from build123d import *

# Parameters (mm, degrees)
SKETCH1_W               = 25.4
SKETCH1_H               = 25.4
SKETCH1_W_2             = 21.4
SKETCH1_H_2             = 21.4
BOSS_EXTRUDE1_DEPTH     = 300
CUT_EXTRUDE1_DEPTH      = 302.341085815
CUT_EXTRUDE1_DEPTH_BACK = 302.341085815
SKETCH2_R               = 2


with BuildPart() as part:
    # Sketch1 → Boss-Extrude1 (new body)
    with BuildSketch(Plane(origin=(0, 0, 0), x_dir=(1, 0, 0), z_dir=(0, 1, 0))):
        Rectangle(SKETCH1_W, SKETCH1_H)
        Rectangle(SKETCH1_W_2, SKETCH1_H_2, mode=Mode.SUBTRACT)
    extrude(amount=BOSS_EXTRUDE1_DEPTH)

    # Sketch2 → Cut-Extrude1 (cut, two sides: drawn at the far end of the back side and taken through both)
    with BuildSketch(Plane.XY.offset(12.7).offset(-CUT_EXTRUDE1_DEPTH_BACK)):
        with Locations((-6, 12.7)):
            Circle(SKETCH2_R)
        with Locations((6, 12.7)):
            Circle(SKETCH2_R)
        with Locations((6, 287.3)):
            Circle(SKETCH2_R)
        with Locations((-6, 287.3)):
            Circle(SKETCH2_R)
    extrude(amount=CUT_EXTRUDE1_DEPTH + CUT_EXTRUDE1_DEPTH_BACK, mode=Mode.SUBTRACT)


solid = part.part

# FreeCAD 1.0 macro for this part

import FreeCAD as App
import Part
import Sketcher

V = App.Vector


def add_polygon(sketch, points):
    """Adds a closed chain of lines whose ends are joined by coincident constraints."""
    first, n = sketch.GeometryCount, len(points)
    for a, b in zip(points, points[1:] + points[:1]):
        sketch.addGeometry(Part.LineSegment(App.Vector(*a, 0), App.Vector(*b, 0)), False)
    for i in range(n):
        sketch.addConstraint(Sketcher.Constraint("Coincident", first + i, 2, first + (i + 1) % n, 1))

doc = App.newDocument("Part")
body = doc.addObject("PartDesign::Body", "Body")

# Sketch on XZ plane
sketch1 = body.newObject("Sketcher::SketchObject", "Sketch")
sketch1.AttachmentSupport = (doc.getObject("XZ_Plane"), [""])
sketch1.MapMode = "FlatFace"
add_polygon(sketch1, [(-12.7, -12.7), (-12.7, 12.7), (12.7, 12.7), (12.7, -12.7)])  # lines 0-3
add_polygon(sketch1, [(10.7, 10.7), (-10.7, 10.7), (-10.7, -10.7), (10.7, -10.7)])  # lines 4-7
sketch1.addConstraint([
    Sketcher.Constraint("Vertical", 0),
    Sketcher.Constraint("Horizontal", 1),
    Sketcher.Constraint("Vertical", 2),
    Sketcher.Constraint("Horizontal", 3),
    Sketcher.Constraint("Horizontal", 4),
    Sketcher.Constraint("Vertical", 5),
    Sketcher.Constraint("Horizontal", 6),
    Sketcher.Constraint("Vertical", 7),
    Sketcher.Constraint("Symmetric", 0, 2, 2, 2, -1, 1),
    Sketcher.Constraint("Symmetric", 4, 2, 6, 2, -1, 1),
    Sketcher.Constraint("Equal", 3, 0),
    Sketcher.Constraint("Equal", 6, 5),
    Sketcher.Constraint("DistanceX", 1, 1, 1, 2, 25.4),
    Sketcher.Constraint("DistanceX", 4, 2, 4, 1, 21.4),
])
pad1 = body.newObject("PartDesign::Pad", "Pad")
pad1.Profile = sketch1
pad1.Length = 300
pad1.Reversed = True

# Sketch on XY plane
sketch2 = body.newObject("Sketcher::SketchObject", "Sketch001")
sketch2.AttachmentSupport = (doc.getObject("XY_Plane"), [""])
sketch2.MapMode = "FlatFace"
sketch2.AttachmentOffset = App.Placement(V(0, 0, 12.7), App.Rotation())
sketch2.addGeometry([
    Part.Circle(V(-6, 12.7, 0), V(0, 0, 1), 2),
    Part.Circle(V(6, 12.7, 0), V(0, 0, 1), 2),
    Part.Circle(V(6, 287.3, 0), V(0, 0, 1), 2),
    Part.Circle(V(-6, 287.3, 0), V(0, 0, 1), 2),
], False)
sketch2.addConstraint([
    Sketcher.Constraint("Equal", 0, 1),
    Sketcher.Constraint("Equal", 1, 2),
    Sketcher.Constraint("Equal", 2, 3),
    Sketcher.Constraint("Symmetric", 0, 3, 1, 3, -2),
    Sketcher.Constraint("Symmetric", 2, 3, 3, 3, -2),
    Sketcher.Constraint("Vertical", 1, 3, 2, 3),
    Sketcher.Constraint("Diameter", 0, 4.0),
    Sketcher.Constraint("DistanceX", 0, 3, -1, 1, 6.0),
    Sketcher.Constraint("DistanceY", -1, 1, 0, 3, 12.7),
    Sketcher.Constraint("DistanceY", -1, 1, 2, 3, 287.3),
])
pocket1 = body.newObject("PartDesign::Pocket", "Pocket")
pocket1.Profile = sketch2
pocket1.Type = "ThroughAll"
pocket1.Midplane = True

doc.recompute()
